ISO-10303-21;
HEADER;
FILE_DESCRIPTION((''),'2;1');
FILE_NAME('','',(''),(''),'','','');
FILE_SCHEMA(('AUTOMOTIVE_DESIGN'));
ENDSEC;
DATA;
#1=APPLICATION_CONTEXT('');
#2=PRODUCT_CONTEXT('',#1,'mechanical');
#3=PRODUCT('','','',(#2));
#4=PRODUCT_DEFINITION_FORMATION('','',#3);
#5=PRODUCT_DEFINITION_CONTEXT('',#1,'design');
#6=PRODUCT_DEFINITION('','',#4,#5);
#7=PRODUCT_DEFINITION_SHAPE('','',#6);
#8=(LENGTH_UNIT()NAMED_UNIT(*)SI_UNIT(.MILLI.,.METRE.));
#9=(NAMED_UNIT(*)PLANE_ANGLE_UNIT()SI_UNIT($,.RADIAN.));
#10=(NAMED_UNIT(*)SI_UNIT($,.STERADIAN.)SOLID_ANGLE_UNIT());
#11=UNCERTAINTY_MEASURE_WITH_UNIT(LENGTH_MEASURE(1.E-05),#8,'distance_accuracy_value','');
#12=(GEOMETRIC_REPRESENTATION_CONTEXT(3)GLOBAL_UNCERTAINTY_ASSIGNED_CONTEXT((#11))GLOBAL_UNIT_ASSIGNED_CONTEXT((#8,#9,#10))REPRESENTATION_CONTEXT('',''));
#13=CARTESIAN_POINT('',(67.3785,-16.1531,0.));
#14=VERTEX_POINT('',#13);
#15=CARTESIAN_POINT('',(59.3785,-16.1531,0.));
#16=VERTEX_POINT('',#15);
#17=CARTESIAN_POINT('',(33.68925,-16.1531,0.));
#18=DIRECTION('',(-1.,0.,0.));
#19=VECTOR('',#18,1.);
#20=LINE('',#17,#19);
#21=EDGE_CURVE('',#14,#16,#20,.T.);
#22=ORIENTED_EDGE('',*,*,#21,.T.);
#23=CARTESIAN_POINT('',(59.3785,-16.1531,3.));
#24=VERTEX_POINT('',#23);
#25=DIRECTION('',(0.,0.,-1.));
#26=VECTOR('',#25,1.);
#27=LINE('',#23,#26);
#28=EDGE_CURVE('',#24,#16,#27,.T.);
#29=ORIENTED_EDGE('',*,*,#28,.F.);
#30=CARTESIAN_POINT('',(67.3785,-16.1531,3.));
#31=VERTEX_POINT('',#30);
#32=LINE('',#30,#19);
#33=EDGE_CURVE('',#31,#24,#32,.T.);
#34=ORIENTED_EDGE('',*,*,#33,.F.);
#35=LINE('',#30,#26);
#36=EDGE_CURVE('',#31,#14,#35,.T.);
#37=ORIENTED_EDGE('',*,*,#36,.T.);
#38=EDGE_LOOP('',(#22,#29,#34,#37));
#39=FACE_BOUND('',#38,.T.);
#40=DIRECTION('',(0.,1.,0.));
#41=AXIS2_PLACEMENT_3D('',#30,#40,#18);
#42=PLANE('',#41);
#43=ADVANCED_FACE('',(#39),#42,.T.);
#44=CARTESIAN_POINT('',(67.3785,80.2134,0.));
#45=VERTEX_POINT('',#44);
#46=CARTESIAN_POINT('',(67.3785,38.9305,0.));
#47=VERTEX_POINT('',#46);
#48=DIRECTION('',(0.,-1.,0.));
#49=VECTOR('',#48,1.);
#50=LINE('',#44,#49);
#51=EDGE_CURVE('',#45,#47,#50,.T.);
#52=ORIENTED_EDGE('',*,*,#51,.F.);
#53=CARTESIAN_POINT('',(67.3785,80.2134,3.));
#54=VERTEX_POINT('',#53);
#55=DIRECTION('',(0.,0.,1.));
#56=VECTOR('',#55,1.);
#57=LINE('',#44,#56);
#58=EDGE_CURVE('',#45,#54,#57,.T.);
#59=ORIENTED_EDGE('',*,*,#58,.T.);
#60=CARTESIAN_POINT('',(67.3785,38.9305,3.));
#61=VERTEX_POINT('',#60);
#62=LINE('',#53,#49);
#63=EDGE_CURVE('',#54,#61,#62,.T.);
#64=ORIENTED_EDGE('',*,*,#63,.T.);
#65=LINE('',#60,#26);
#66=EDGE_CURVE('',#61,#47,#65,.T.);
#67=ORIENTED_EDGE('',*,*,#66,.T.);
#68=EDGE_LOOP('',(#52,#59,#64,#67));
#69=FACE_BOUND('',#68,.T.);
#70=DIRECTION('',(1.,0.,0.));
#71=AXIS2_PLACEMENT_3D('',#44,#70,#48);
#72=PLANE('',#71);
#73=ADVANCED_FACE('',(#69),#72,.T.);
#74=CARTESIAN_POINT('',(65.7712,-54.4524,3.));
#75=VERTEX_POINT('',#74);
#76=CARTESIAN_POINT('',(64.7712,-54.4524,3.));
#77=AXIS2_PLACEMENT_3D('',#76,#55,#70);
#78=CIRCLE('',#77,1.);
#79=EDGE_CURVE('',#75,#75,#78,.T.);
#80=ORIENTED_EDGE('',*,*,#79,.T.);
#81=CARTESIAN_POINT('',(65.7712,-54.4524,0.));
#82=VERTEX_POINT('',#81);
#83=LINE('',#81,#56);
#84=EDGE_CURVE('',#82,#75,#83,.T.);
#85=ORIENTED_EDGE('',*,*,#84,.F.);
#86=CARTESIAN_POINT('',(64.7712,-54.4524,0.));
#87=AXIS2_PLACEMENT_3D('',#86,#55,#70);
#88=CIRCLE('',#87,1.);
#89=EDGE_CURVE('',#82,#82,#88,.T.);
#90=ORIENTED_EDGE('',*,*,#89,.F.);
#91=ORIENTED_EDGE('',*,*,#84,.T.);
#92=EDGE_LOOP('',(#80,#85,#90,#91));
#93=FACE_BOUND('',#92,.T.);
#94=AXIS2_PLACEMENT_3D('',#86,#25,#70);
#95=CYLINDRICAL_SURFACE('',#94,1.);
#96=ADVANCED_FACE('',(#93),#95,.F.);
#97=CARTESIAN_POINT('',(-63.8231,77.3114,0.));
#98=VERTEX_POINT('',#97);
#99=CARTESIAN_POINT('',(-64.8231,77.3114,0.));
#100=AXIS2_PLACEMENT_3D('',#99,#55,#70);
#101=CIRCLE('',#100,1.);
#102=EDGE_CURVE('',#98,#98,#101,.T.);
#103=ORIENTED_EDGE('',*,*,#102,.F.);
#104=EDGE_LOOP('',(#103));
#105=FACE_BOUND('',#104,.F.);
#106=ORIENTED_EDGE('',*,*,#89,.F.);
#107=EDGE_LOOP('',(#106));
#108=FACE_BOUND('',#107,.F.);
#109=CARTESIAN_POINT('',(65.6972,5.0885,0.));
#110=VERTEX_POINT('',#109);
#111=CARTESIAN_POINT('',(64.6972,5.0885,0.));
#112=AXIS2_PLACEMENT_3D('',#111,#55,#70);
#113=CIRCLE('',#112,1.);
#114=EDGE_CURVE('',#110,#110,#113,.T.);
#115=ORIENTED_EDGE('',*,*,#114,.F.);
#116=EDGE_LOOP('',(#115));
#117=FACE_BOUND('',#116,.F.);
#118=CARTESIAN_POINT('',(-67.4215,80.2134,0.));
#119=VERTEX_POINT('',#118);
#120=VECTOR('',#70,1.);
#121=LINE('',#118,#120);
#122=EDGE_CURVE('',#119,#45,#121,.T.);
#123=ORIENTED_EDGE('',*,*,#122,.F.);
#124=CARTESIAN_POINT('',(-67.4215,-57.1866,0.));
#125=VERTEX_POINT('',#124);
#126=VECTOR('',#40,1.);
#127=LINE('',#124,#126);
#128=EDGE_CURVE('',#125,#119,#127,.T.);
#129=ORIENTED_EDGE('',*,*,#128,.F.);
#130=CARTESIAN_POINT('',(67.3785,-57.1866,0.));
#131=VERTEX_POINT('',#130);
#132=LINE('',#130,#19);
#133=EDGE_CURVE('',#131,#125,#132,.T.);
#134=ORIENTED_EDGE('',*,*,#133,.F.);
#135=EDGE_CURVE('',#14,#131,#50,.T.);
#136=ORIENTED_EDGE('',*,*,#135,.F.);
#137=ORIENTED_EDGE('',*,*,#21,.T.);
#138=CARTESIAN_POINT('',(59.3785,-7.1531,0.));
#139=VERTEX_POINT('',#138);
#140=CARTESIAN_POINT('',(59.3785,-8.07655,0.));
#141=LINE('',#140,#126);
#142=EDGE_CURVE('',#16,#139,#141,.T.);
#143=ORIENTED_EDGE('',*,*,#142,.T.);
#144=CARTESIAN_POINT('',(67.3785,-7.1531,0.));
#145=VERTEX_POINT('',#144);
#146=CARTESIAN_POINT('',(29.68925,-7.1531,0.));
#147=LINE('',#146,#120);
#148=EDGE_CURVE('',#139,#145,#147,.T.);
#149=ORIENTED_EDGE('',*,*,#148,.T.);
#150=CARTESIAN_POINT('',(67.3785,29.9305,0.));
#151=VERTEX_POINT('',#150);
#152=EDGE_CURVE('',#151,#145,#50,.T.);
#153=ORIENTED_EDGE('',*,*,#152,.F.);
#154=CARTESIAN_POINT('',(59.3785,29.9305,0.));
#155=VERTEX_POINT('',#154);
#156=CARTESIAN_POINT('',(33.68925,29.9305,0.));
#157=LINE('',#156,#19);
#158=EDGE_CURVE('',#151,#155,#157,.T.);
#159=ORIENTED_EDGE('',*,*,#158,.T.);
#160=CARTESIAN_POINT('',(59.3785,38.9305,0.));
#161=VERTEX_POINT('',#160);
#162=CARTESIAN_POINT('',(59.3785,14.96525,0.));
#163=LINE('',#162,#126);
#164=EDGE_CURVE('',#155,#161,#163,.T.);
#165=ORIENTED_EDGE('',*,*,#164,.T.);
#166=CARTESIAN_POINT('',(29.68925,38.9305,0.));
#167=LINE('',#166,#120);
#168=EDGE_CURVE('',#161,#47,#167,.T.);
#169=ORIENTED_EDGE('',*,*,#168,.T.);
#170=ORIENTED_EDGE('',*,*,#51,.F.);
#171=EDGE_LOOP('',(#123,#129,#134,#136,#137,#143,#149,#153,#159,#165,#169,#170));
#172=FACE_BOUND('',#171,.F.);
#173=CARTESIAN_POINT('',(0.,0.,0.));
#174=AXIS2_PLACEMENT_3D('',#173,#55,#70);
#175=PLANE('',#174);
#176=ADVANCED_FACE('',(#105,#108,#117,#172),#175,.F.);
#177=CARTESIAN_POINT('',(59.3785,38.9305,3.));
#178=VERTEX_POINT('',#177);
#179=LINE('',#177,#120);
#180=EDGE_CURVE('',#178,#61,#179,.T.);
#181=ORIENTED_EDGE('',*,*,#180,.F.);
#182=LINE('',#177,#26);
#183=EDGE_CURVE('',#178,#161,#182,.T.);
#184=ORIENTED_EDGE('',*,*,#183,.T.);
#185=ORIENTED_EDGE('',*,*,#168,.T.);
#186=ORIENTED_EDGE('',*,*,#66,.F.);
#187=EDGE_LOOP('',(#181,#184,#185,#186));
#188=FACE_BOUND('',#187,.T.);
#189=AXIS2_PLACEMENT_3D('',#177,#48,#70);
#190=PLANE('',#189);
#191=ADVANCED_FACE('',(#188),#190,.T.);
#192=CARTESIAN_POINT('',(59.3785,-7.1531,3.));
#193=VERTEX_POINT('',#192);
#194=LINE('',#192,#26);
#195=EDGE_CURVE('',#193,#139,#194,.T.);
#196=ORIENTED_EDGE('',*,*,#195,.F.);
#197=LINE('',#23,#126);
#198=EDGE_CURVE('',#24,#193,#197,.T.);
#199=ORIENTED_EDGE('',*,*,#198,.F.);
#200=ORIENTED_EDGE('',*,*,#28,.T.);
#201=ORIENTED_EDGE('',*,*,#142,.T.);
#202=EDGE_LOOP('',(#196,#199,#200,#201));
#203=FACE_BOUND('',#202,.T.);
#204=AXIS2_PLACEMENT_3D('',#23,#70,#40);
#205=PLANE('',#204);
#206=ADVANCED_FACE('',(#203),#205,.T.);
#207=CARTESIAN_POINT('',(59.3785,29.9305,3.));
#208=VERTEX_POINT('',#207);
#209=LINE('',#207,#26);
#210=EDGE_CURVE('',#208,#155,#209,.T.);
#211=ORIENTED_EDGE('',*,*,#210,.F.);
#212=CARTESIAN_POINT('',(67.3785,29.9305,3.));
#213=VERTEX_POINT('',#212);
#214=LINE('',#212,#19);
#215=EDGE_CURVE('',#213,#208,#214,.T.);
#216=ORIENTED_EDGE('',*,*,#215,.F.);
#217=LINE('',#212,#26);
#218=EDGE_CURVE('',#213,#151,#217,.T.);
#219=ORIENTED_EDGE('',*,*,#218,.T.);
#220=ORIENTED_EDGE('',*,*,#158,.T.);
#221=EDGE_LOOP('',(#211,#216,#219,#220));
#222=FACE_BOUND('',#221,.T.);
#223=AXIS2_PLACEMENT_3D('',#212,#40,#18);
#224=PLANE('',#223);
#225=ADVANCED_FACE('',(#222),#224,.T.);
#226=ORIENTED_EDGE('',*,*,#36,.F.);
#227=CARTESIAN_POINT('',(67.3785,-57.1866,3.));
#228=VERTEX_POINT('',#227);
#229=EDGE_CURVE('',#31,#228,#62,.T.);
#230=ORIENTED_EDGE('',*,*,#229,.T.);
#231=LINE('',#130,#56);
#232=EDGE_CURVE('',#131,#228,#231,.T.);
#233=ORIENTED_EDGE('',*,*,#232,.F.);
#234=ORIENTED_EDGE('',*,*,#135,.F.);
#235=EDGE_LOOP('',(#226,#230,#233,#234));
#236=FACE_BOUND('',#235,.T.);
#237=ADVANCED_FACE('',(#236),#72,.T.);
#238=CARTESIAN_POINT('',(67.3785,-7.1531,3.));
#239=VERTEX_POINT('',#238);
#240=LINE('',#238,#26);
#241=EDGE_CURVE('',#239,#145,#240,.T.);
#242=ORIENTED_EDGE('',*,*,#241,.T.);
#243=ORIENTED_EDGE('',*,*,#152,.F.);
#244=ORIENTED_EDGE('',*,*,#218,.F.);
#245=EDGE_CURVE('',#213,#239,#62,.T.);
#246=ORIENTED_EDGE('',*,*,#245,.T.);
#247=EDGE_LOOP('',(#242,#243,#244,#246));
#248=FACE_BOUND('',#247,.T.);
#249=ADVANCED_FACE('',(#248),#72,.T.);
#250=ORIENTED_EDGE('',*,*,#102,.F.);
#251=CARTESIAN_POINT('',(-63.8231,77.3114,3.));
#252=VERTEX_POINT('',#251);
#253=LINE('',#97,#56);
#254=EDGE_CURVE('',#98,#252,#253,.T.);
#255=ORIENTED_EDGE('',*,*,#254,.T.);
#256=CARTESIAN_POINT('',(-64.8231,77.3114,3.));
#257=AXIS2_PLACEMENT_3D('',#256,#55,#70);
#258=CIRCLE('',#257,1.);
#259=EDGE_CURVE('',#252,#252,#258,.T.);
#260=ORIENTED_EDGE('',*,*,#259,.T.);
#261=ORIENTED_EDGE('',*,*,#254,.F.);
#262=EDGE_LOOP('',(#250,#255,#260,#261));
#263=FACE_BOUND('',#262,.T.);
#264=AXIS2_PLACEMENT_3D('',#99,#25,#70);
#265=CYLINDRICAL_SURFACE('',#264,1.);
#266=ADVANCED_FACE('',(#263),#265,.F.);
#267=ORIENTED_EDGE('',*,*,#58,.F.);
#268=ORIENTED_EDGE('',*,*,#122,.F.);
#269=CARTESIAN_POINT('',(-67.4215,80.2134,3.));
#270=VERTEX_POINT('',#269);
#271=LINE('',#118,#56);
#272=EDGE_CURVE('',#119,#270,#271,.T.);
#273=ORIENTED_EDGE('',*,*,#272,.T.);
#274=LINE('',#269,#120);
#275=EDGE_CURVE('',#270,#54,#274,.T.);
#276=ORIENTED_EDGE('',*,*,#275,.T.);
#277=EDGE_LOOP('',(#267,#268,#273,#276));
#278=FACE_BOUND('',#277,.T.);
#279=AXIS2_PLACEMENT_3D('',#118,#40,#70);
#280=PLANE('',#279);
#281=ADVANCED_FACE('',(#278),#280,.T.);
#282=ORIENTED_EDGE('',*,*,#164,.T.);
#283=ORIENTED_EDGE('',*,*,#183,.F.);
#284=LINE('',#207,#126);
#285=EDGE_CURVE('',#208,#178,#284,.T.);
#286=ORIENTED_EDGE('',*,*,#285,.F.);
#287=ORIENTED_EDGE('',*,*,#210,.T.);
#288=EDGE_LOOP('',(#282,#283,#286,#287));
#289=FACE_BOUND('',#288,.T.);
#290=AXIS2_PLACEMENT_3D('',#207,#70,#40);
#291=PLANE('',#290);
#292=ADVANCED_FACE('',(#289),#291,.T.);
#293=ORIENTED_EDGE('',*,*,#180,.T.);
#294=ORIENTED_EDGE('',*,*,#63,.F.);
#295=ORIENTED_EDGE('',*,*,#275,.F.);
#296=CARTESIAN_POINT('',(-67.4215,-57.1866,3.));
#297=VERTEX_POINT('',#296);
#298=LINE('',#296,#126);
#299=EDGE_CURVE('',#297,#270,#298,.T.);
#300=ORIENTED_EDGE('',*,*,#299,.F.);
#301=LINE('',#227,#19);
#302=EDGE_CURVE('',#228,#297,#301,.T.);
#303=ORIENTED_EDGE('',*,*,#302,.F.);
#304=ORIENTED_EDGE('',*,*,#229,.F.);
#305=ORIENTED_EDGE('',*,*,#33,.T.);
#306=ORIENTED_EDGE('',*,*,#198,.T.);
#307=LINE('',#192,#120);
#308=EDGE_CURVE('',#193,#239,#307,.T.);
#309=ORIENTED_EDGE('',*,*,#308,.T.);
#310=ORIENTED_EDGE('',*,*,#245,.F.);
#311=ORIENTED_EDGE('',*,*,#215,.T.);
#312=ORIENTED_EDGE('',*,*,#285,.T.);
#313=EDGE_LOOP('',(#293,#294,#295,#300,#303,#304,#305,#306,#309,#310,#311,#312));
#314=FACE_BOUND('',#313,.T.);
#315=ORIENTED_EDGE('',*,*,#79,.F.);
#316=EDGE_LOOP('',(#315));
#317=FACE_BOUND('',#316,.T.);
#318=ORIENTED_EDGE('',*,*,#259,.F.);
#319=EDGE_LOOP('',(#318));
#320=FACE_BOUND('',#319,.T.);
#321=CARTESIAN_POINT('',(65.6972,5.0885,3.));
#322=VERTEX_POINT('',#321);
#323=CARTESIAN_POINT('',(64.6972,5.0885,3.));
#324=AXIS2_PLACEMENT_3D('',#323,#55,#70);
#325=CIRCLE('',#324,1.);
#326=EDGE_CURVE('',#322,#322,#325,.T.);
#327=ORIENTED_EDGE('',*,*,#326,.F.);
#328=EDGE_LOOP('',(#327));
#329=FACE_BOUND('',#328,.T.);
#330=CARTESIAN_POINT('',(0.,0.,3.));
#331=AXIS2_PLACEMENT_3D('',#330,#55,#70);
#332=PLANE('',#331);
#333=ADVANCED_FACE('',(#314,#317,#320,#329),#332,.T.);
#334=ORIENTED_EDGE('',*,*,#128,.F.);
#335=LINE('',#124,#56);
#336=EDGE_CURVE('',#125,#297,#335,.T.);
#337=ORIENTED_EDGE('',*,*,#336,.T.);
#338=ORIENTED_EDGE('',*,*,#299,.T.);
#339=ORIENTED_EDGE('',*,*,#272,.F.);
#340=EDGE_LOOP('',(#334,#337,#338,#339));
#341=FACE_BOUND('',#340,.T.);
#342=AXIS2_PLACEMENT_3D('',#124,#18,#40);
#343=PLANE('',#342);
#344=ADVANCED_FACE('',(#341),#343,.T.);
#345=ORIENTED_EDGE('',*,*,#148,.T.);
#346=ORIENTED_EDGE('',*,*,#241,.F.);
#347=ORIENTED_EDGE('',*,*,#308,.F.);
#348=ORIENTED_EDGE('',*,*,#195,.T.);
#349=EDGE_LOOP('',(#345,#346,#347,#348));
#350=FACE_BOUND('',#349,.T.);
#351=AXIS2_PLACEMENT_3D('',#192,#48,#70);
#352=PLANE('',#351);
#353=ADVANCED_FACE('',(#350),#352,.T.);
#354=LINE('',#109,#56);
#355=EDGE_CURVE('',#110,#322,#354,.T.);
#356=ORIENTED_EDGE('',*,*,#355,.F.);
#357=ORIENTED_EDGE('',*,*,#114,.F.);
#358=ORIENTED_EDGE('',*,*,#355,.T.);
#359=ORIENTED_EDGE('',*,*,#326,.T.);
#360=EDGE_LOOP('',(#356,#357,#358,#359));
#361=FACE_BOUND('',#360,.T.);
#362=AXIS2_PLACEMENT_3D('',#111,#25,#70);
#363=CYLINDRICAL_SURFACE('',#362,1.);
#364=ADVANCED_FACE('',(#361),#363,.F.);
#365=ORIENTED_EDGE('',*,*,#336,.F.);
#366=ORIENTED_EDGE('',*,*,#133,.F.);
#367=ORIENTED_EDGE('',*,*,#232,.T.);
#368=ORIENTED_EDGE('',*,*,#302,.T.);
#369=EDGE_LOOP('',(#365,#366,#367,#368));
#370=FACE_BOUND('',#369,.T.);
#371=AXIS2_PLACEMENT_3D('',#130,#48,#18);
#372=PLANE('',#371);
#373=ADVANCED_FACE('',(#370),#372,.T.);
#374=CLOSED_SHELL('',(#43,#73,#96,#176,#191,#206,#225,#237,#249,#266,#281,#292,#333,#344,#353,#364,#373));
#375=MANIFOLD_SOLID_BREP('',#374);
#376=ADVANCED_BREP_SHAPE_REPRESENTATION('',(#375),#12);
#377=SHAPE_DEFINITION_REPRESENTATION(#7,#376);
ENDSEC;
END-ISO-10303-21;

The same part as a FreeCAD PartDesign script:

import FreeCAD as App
import Part
import Sketcher
from FreeCAD import Vector


def add_polygon(sketch, points):
    """Adds a closed chain of lines whose ends are joined by coincident constraints."""
    first, n = sketch.GeometryCount, len(points)
    for a, b in zip(points, points[1:] + points[:1]):
        sketch.addGeometry(Part.LineSegment(App.Vector(*a, 0), App.Vector(*b, 0)), False)
    for i in range(n):
        sketch.addConstraint(Sketcher.Constraint("Coincident", first + i, 2, first + (i + 1) % n, 1))

doc = App.newDocument("Part")
params = doc.addObject("Spreadsheet::Sheet", "Params")
for row, (alias, value) in enumerate([
    ("sketch1_diameter", "2 mm"),
    ("sketch1_width", "134.8 mm"),
    ("sketch1_height", "137.4 mm"),
    ("pad1_length", "3 mm"),
    ("sketch2_width", "8 mm"),
    ("sketch2_height", "9 mm"),
], start=1):
    params.set(f"A{row}", alias)
    params.set(f"B{row}", "=" + value)
    params.setAlias(f"B{row}", alias)

body = doc.addObject("PartDesign::Body", "Body")

sketch1 = body.newObject("Sketcher::SketchObject", "Sketch")
sketch1.AttachmentSupport = (doc.getObject("XY_Plane"), [""])
sketch1.MapMode = "FlatFace"
add_polygon(sketch1, [(-67.4, -57.2), (67.4, -57.2), (67.4, 80.2), (-67.4, 80.2)])
sketch1.addGeometry(Part.Circle(Vector(64.8, -54.5, 0), Vector(0, 0, 1), 1), False)
sketch1.addGeometry(Part.Circle(Vector(64.7, 5.1, 0), Vector(0, 0, 1), 1), False)
sketch1.addGeometry(Part.Circle(Vector(-64.8, 77.3, 0), Vector(0, 0, 1), 1), False)
sketch1.addConstraint([
    Sketcher.Constraint("Horizontal", 0),
    Sketcher.Constraint("Vertical", 1),
    Sketcher.Constraint("Horizontal", 2),
    Sketcher.Constraint("Vertical", 3),
    Sketcher.Constraint("Equal", 4, 5),
    Sketcher.Constraint("Equal", 5, 6),
    Sketcher.Constraint("Diameter", 4, 2.0),
    Sketcher.Constraint("DistanceX", 0, 1, 0, 2, 134.8),
    Sketcher.Constraint("DistanceY", 1, 1, 1, 2, 137.4),
    Sketcher.Constraint("DistanceX", 6, 3, -1, 1, 64.823),
    Sketcher.Constraint("DistanceX", 5, 3, 4, 3, 0.074),
    Sketcher.Constraint("DistanceY", 4, 3, 5, 3, 59.541),
    Sketcher.Constraint("DistanceY", 5, 3, 6, 3, 72.223),
    Sketcher.Constraint("DistanceY", 0, 2, 5, 3, 62.275),
    Sketcher.Constraint("DistanceX", -1, 1, 4, 3, 64.7712),
    Sketcher.Constraint("DistanceY", 4, 3, -1, 1, 54.4524),
    Sketcher.Constraint("DistanceX", -1, 1, 0, 2, 67.3785),
])
sketch1.setExpression("Constraints[10]", "Params.sketch1_diameter")
sketch1.setExpression("Constraints[11]", "Params.sketch1_width")
sketch1.setExpression("Constraints[12]", "Params.sketch1_height")
pad1 = body.newObject("PartDesign::Pad", "Pad")
pad1.Profile = sketch1
pad1.setExpression("Length", "Params.pad1_length")

sketch2 = body.newObject("Sketcher::SketchObject", "Sketch001")
sketch2.AttachmentSupport = (doc.getObject("XY_Plane"), [""])
sketch2.MapMode = "FlatFace"
sketch2.AttachmentOffset = App.Placement(Vector(0, 0, 3), App.Rotation())
add_polygon(sketch2, [(59, -16), (67, -16), (67, -7), (59, -7)])
add_polygon(sketch2, [(59, 30), (67, 30), (67, 39), (59, 39)])
sketch2.addConstraint([
    Sketcher.Constraint("Horizontal", 0),
    Sketcher.Constraint("Vertical", 1),
    Sketcher.Constraint("Horizontal", 2),
    Sketcher.Constraint("Vertical", 3),
    Sketcher.Constraint("Horizontal", 4),
    Sketcher.Constraint("Vertical", 5),
    Sketcher.Constraint("Horizontal", 6),
    Sketcher.Constraint("Vertical", 7),
    Sketcher.Constraint("Vertical", 1, 2, 4, 2),
    Sketcher.Constraint("Vertical", 3, 2, 6, 2),
    Sketcher.Constraint("Equal", 3, 5),
    Sketcher.Constraint("DistanceX", 0, 1, 0, 2, 8.0),
    Sketcher.Constraint("DistanceY", 1, 1, 1, 2, 9.0),
    Sketcher.Constraint("DistanceY", 0, 2, -1, 1, 16.153),
    Sketcher.Constraint("DistanceX", -1, 1, 0, 2, 67.3785),
    Sketcher.Constraint("DistanceY", -1, 1, 4, 2, 29.9305),
])
sketch2.setExpression("Constraints[19]", "Params.sketch2_width")
sketch2.setExpression("Constraints[20]", "Params.sketch2_height")
pocket1 = body.newObject("PartDesign::Pocket", "Pocket")
pocket1.Profile = sketch2
pocket1.Type = "ThroughAll"

doc.recompute()
